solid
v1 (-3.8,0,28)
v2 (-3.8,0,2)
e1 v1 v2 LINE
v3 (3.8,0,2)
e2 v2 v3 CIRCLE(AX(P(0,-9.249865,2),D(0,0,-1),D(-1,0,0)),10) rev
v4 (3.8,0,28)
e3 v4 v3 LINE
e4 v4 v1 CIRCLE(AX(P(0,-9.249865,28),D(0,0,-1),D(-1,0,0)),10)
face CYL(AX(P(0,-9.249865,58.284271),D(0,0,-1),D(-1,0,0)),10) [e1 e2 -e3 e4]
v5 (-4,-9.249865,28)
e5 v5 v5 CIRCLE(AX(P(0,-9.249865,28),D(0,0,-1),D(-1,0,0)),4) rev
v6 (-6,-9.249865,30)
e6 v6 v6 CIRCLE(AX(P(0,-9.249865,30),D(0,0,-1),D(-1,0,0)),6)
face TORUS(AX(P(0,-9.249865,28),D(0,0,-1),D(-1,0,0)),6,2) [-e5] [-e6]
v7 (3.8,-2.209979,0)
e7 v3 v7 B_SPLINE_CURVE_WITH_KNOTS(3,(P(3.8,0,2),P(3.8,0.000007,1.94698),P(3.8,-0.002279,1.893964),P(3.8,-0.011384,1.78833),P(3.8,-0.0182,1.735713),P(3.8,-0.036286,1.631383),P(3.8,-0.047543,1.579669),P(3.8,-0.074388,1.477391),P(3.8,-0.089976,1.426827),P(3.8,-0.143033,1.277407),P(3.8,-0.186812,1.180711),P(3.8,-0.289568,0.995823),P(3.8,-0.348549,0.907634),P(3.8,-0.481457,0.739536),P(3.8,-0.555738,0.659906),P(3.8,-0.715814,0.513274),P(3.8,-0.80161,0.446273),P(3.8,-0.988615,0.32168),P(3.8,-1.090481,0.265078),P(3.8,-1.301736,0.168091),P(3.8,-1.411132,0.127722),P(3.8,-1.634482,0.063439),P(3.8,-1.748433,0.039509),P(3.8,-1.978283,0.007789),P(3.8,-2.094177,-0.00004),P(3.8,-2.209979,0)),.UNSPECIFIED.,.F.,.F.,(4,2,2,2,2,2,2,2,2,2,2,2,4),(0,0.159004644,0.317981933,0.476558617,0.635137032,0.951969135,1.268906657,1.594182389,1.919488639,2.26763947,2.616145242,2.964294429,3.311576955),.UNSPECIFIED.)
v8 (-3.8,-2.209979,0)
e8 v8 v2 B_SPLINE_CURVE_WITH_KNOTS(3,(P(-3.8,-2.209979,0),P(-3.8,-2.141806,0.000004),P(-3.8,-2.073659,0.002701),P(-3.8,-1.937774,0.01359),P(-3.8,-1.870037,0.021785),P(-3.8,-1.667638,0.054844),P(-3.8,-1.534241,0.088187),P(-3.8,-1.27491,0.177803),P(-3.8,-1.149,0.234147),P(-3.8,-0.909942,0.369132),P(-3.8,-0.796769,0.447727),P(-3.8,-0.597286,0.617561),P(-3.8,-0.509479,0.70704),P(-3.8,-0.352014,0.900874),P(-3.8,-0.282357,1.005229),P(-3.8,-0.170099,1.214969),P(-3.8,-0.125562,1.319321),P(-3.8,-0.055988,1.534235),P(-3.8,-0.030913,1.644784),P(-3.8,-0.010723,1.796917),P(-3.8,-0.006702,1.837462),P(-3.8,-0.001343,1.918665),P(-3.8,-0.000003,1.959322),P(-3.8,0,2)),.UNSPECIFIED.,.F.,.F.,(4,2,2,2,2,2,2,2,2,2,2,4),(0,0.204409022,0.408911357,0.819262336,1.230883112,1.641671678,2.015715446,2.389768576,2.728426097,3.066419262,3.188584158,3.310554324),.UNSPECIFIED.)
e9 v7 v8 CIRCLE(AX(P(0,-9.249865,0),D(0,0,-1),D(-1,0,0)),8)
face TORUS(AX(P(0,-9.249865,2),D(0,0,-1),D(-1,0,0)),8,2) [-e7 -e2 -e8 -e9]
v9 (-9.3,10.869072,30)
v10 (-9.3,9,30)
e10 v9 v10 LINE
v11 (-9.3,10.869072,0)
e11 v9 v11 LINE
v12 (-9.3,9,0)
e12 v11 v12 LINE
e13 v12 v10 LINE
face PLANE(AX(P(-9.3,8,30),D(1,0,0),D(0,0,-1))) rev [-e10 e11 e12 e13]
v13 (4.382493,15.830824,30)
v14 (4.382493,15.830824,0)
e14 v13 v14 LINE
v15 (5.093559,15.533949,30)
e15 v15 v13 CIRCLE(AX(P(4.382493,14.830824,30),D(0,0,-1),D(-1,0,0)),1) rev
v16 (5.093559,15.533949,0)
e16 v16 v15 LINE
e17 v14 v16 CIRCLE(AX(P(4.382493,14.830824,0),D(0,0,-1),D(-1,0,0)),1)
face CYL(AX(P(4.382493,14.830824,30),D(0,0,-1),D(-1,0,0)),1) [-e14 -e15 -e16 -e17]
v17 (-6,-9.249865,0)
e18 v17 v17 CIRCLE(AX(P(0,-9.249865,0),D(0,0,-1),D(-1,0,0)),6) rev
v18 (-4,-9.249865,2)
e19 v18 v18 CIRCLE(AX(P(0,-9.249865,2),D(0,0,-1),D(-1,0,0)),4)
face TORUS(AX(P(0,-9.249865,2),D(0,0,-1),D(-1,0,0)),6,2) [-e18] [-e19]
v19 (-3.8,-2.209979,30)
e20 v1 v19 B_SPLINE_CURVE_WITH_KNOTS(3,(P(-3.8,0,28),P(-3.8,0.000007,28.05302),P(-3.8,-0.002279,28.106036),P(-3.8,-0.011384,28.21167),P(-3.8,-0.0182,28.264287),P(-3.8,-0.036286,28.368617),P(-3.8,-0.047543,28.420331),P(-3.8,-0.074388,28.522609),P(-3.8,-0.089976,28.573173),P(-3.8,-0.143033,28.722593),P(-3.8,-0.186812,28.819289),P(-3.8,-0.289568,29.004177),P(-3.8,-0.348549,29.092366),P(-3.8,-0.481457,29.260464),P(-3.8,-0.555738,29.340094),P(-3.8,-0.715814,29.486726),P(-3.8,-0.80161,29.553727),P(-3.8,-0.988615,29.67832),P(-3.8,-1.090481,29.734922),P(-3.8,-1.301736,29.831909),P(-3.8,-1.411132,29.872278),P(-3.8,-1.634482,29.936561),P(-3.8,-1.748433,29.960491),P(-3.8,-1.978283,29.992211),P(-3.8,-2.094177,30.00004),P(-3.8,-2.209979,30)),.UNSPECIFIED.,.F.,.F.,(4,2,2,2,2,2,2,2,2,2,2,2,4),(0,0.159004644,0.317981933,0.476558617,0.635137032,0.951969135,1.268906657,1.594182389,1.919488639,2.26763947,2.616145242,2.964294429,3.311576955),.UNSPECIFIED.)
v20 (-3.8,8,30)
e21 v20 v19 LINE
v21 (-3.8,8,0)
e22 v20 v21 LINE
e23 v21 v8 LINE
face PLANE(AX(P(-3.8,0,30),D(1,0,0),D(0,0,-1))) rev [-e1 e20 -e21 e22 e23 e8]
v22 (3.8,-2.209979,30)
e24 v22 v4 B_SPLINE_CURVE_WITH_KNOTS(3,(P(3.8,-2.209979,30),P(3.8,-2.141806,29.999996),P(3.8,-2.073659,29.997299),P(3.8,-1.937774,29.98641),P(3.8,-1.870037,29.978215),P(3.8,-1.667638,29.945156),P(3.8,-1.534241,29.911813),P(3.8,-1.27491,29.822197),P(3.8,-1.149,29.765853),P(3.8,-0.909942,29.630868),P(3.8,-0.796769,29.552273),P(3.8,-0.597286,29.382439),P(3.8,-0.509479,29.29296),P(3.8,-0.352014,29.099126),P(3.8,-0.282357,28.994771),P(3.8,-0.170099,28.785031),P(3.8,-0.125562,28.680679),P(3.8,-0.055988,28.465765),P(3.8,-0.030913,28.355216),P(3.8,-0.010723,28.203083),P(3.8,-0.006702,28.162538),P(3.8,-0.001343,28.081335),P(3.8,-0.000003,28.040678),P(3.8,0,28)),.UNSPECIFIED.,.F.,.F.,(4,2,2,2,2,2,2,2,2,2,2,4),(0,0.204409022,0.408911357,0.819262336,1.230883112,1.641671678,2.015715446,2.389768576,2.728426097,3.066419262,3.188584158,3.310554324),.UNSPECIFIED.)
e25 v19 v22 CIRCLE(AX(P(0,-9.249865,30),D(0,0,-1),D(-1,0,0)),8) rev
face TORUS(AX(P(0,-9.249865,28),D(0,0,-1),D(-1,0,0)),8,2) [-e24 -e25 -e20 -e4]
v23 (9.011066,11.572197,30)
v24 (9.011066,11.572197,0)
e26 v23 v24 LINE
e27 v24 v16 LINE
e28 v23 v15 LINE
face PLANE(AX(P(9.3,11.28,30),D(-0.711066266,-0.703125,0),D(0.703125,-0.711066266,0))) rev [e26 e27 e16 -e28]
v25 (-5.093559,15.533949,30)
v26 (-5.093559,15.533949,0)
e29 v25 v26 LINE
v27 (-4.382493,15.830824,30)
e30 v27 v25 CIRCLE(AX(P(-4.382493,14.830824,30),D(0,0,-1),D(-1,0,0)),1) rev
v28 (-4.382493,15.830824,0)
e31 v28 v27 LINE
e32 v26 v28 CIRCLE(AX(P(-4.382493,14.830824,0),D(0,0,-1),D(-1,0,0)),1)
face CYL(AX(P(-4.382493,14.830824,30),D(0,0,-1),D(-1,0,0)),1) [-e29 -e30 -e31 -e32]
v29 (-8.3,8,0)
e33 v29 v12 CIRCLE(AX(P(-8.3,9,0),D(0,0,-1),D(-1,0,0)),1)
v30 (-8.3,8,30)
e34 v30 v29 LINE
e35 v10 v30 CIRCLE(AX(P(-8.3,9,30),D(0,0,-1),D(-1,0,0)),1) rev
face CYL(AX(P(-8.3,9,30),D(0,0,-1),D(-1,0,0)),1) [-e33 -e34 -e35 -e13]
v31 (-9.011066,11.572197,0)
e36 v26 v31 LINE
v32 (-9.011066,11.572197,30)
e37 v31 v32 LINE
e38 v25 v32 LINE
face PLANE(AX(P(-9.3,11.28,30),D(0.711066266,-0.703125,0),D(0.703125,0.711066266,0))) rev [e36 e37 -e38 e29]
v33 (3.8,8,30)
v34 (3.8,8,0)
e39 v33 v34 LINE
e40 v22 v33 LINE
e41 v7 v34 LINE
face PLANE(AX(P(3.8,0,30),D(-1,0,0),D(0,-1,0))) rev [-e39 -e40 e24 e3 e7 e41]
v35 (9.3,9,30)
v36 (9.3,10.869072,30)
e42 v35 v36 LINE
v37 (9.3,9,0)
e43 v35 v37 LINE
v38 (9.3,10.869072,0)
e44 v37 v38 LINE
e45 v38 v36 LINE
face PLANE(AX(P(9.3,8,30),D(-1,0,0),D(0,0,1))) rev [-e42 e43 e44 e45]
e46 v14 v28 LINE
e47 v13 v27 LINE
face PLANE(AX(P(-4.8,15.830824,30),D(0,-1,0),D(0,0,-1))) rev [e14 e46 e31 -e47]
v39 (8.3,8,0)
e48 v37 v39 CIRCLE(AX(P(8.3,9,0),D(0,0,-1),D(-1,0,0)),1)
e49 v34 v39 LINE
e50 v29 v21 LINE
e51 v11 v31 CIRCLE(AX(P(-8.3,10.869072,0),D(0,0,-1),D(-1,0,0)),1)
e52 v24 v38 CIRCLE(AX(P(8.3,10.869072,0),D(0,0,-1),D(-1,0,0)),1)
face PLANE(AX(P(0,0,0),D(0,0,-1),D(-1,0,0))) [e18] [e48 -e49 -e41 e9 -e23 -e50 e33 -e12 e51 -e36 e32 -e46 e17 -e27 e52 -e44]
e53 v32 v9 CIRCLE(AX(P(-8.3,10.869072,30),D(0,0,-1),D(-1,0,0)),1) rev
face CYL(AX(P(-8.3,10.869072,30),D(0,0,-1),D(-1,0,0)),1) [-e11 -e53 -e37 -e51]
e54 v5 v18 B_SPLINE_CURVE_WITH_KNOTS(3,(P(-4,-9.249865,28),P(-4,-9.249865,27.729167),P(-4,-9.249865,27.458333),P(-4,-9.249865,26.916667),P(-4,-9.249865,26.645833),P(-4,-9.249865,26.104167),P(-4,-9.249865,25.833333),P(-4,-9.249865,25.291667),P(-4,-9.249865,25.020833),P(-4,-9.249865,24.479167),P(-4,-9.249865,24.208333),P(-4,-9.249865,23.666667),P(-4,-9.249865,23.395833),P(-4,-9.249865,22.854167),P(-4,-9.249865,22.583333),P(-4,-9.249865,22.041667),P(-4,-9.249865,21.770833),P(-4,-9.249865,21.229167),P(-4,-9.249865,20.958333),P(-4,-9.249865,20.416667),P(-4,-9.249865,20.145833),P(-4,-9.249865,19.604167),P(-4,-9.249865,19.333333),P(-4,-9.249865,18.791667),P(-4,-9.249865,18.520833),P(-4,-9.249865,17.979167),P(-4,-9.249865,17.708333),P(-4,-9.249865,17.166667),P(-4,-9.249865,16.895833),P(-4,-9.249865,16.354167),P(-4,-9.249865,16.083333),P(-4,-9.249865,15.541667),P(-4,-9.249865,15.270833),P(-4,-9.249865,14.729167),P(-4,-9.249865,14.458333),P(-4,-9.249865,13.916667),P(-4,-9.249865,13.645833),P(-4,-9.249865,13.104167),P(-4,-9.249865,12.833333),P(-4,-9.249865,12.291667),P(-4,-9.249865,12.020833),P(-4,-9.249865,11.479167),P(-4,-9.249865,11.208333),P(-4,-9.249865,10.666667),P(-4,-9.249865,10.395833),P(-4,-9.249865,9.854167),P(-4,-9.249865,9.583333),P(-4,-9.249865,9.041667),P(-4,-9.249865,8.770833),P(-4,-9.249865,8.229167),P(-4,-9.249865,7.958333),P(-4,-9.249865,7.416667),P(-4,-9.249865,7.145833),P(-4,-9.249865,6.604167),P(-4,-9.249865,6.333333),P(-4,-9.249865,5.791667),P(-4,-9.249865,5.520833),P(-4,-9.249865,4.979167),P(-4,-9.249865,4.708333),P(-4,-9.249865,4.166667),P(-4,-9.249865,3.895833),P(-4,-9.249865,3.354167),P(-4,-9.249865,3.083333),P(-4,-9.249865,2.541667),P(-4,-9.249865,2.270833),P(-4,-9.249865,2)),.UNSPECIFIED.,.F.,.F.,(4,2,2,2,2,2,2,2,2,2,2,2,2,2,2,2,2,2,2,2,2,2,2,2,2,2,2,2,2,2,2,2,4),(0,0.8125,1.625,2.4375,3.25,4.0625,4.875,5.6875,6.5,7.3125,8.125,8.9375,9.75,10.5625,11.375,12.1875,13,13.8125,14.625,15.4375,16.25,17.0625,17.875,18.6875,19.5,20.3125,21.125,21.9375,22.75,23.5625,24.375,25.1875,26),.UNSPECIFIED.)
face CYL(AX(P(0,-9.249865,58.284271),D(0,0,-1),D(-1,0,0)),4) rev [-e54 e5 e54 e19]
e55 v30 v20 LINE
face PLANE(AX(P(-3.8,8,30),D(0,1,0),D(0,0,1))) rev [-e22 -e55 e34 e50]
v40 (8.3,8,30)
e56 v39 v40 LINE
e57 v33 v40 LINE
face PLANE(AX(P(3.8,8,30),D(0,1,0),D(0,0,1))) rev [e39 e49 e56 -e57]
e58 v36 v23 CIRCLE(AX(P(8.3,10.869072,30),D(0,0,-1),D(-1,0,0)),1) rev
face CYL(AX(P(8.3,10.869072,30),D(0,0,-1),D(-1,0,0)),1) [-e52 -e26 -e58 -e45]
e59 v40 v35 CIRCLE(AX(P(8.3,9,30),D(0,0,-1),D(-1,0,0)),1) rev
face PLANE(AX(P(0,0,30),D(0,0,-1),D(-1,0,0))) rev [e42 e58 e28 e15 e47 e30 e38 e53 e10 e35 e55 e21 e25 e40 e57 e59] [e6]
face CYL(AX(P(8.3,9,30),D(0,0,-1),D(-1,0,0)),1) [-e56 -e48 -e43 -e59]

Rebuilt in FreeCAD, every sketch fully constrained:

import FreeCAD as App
import Part
import Sketcher

V = App.Vector


def edges_at(feature, points):
    """Names of the edges that pass closest to the given points."""
    edges = feature.Shape.Edges
    near = lambda p: min(range(len(edges)), key=lambda i: edges[i].distToShape(Part.Vertex(*p))[0])
    return sorted({f"Edge{near(p) + 1}" for p in points})


def add_polygon(sketch, points):
    """Adds a closed chain of lines whose ends are joined by coincident constraints."""
    first, n = sketch.GeometryCount, len(points)
    for a, b in zip(points, points[1:] + points[:1]):
        sketch.addGeometry(Part.LineSegment(App.Vector(*a, 0), App.Vector(*b, 0)), False)
    for i in range(n):
        sketch.addConstraint(Sketcher.Constraint("Coincident", first + i, 2, first + (i + 1) % n, 1))

doc = App.newDocument("Part")
params = doc.addObject("Spreadsheet::Sheet", "Params")
for row, (alias, value) in enumerate([
    ("sketch1_height", "8 mm"),
    ("sketch1_width", "7.6 mm"),
    ("sketch1_width2", "5.5 mm"),
    ("sketch1_width3", "9.6 mm"),
    ("sketch1_length", "6.4 mm"),
    ("pad1_length", "30 mm"),
    ("fillet_radius", "1 mm"),
    ("sketch2_diameter", "20 mm"),
    ("sketch2_diameter2", "8 mm"),
    ("pad2_length", "30 mm"),
    ("fillet2_radius", "2 mm"),
], start=1):
    params.set(f"A{row}", alias)
    params.set(f"B{row}", "=" + value)
    params.setAlias(f"B{row}", alias)

body = doc.addObject("PartDesign::Body", "Body")

sketch1 = body.newObject("Sketcher::SketchObject", "Sketch")
sketch1.AttachmentSupport = (doc.getObject("XY_Plane"), [""])
sketch1.MapMode = "FlatFace"
add_polygon(sketch1, [(-3.8, 0), (3.8, 0), (3.8, 8), (9.3, 8), (9.3, 11.3), (4.8, 15.8), (-4.8, 15.8), (-9.3, 11.3), (-9.3, 8), (-3.8, 8)])
sketch1.addConstraint(Sketcher.Constraint("Horizontal", 0))
sketch1.addConstraint(Sketcher.Constraint("Vertical", 1))
sketch1.addConstraint(Sketcher.Constraint("Horizontal", 2))
sketch1.addConstraint(Sketcher.Constraint("Vertical", 3))
sketch1.addConstraint(Sketcher.Constraint("Horizontal", 5))
sketch1.addConstraint(Sketcher.Constraint("Vertical", 7))
sketch1.addConstraint(Sketcher.Constraint("Horizontal", 8))
sketch1.addConstraint(Sketcher.Constraint("Vertical", 9))
sketch1.addConstraint(Sketcher.Constraint("Symmetric", 0, 2, 9, 2, -1, 1))
sketch1.addConstraint(Sketcher.Constraint("Symmetric", 3, 2, 6, 2, -2))
sketch1.addConstraint(Sketcher.Constraint("Horizontal", 2, 2, 7, 2))
sketch1.addConstraint(Sketcher.Constraint("Equal", 4, 6))
sketch1.addConstraint(Sketcher.Constraint("DistanceY", 1, 1, 1, 2, 8.0))
sketch1.addConstraint(Sketcher.Constraint("DistanceX", 0, 1, 0, 2, 7.6))
sketch1.addConstraint(Sketcher.Constraint("DistanceX", 2, 1, 2, 2, 5.5))
sketch1.addConstraint(Sketcher.Constraint("DistanceX", 5, 2, 5, 1, 9.6))
sketch1.addConstraint(Sketcher.Constraint("Distance", 4, 6.4))
sketch1.addConstraint(Sketcher.Constraint("DistanceY", 3, 1, 3, 2, 3.28))
sketch1.setExpression("Constraints[22]", "Params.sketch1_height")
sketch1.setExpression("Constraints[23]", "Params.sketch1_width")
sketch1.setExpression("Constraints[24]", "Params.sketch1_width2")
sketch1.setExpression("Constraints[25]", "Params.sketch1_width3")
sketch1.setExpression("Constraints[26]", "Params.sketch1_length")
pad1 = body.newObject("PartDesign::Pad", "Pad")
pad1.Profile = sketch1
pad1.setExpression("Length", "Params.pad1_length")
doc.recompute()

fillet = body.newObject("PartDesign::Fillet", "Fillet")
fillet.Base = (pad1, edges_at(pad1, [
    (9.3, 11.28, 15),
    (9.3, 8, 15),
    (-9.3, 8, 15),
    (-9.3, 11.28, 15),
    (-4.8, 15.831, 15),
    (4.8, 15.831, 15),
]))
fillet.setExpression("Radius", "Params.fillet_radius")

sketch2 = body.newObject("Sketcher::SketchObject", "Sketch001")
sketch2.AttachmentSupport = (doc.getObject("XY_Plane"), [""])
sketch2.MapMode = "FlatFace"
sketch2.addGeometry(Part.Circle(V(0, -9.2, 0), V(0, 0, 1), 10), False)
sketch2.addGeometry(Part.Circle(V(0, -9.2, 0), V(0, 0, 1), 4), False)
sketch2.addConstraint(Sketcher.Constraint("Coincident", 1, 3, 0, 3))
sketch2.addConstraint(Sketcher.Constraint("PointOnObject", 0, 3, -2))
sketch2.addConstraint(Sketcher.Constraint("Diameter", 0, 20.0))
sketch2.addConstraint(Sketcher.Constraint("Diameter", 1, 8.0))
sketch2.addConstraint(Sketcher.Constraint("DistanceY", 0, 3, -1, 1, 9.249865))
sketch2.setExpression("Constraints[2]", "Params.sketch2_diameter")
sketch2.setExpression("Constraints[3]", "Params.sketch2_diameter2")
pad2 = body.newObject("PartDesign::Pad", "Pad001")
pad2.Profile = sketch2
pad2.setExpression("Length", "Params.pad2_length")
doc.recompute()

fillet2 = body.newObject("PartDesign::Fillet", "Fillet001")
fillet2.Base = (pad2, edges_at(pad2, [
    (0, -19.25, 0),
    (0, -19.25, 30),
    (4, -9.25, 30),
    (4, -9.25, 0),
]))
fillet2.setExpression("Radius", "Params.fillet2_radius")

doc.recompute()
